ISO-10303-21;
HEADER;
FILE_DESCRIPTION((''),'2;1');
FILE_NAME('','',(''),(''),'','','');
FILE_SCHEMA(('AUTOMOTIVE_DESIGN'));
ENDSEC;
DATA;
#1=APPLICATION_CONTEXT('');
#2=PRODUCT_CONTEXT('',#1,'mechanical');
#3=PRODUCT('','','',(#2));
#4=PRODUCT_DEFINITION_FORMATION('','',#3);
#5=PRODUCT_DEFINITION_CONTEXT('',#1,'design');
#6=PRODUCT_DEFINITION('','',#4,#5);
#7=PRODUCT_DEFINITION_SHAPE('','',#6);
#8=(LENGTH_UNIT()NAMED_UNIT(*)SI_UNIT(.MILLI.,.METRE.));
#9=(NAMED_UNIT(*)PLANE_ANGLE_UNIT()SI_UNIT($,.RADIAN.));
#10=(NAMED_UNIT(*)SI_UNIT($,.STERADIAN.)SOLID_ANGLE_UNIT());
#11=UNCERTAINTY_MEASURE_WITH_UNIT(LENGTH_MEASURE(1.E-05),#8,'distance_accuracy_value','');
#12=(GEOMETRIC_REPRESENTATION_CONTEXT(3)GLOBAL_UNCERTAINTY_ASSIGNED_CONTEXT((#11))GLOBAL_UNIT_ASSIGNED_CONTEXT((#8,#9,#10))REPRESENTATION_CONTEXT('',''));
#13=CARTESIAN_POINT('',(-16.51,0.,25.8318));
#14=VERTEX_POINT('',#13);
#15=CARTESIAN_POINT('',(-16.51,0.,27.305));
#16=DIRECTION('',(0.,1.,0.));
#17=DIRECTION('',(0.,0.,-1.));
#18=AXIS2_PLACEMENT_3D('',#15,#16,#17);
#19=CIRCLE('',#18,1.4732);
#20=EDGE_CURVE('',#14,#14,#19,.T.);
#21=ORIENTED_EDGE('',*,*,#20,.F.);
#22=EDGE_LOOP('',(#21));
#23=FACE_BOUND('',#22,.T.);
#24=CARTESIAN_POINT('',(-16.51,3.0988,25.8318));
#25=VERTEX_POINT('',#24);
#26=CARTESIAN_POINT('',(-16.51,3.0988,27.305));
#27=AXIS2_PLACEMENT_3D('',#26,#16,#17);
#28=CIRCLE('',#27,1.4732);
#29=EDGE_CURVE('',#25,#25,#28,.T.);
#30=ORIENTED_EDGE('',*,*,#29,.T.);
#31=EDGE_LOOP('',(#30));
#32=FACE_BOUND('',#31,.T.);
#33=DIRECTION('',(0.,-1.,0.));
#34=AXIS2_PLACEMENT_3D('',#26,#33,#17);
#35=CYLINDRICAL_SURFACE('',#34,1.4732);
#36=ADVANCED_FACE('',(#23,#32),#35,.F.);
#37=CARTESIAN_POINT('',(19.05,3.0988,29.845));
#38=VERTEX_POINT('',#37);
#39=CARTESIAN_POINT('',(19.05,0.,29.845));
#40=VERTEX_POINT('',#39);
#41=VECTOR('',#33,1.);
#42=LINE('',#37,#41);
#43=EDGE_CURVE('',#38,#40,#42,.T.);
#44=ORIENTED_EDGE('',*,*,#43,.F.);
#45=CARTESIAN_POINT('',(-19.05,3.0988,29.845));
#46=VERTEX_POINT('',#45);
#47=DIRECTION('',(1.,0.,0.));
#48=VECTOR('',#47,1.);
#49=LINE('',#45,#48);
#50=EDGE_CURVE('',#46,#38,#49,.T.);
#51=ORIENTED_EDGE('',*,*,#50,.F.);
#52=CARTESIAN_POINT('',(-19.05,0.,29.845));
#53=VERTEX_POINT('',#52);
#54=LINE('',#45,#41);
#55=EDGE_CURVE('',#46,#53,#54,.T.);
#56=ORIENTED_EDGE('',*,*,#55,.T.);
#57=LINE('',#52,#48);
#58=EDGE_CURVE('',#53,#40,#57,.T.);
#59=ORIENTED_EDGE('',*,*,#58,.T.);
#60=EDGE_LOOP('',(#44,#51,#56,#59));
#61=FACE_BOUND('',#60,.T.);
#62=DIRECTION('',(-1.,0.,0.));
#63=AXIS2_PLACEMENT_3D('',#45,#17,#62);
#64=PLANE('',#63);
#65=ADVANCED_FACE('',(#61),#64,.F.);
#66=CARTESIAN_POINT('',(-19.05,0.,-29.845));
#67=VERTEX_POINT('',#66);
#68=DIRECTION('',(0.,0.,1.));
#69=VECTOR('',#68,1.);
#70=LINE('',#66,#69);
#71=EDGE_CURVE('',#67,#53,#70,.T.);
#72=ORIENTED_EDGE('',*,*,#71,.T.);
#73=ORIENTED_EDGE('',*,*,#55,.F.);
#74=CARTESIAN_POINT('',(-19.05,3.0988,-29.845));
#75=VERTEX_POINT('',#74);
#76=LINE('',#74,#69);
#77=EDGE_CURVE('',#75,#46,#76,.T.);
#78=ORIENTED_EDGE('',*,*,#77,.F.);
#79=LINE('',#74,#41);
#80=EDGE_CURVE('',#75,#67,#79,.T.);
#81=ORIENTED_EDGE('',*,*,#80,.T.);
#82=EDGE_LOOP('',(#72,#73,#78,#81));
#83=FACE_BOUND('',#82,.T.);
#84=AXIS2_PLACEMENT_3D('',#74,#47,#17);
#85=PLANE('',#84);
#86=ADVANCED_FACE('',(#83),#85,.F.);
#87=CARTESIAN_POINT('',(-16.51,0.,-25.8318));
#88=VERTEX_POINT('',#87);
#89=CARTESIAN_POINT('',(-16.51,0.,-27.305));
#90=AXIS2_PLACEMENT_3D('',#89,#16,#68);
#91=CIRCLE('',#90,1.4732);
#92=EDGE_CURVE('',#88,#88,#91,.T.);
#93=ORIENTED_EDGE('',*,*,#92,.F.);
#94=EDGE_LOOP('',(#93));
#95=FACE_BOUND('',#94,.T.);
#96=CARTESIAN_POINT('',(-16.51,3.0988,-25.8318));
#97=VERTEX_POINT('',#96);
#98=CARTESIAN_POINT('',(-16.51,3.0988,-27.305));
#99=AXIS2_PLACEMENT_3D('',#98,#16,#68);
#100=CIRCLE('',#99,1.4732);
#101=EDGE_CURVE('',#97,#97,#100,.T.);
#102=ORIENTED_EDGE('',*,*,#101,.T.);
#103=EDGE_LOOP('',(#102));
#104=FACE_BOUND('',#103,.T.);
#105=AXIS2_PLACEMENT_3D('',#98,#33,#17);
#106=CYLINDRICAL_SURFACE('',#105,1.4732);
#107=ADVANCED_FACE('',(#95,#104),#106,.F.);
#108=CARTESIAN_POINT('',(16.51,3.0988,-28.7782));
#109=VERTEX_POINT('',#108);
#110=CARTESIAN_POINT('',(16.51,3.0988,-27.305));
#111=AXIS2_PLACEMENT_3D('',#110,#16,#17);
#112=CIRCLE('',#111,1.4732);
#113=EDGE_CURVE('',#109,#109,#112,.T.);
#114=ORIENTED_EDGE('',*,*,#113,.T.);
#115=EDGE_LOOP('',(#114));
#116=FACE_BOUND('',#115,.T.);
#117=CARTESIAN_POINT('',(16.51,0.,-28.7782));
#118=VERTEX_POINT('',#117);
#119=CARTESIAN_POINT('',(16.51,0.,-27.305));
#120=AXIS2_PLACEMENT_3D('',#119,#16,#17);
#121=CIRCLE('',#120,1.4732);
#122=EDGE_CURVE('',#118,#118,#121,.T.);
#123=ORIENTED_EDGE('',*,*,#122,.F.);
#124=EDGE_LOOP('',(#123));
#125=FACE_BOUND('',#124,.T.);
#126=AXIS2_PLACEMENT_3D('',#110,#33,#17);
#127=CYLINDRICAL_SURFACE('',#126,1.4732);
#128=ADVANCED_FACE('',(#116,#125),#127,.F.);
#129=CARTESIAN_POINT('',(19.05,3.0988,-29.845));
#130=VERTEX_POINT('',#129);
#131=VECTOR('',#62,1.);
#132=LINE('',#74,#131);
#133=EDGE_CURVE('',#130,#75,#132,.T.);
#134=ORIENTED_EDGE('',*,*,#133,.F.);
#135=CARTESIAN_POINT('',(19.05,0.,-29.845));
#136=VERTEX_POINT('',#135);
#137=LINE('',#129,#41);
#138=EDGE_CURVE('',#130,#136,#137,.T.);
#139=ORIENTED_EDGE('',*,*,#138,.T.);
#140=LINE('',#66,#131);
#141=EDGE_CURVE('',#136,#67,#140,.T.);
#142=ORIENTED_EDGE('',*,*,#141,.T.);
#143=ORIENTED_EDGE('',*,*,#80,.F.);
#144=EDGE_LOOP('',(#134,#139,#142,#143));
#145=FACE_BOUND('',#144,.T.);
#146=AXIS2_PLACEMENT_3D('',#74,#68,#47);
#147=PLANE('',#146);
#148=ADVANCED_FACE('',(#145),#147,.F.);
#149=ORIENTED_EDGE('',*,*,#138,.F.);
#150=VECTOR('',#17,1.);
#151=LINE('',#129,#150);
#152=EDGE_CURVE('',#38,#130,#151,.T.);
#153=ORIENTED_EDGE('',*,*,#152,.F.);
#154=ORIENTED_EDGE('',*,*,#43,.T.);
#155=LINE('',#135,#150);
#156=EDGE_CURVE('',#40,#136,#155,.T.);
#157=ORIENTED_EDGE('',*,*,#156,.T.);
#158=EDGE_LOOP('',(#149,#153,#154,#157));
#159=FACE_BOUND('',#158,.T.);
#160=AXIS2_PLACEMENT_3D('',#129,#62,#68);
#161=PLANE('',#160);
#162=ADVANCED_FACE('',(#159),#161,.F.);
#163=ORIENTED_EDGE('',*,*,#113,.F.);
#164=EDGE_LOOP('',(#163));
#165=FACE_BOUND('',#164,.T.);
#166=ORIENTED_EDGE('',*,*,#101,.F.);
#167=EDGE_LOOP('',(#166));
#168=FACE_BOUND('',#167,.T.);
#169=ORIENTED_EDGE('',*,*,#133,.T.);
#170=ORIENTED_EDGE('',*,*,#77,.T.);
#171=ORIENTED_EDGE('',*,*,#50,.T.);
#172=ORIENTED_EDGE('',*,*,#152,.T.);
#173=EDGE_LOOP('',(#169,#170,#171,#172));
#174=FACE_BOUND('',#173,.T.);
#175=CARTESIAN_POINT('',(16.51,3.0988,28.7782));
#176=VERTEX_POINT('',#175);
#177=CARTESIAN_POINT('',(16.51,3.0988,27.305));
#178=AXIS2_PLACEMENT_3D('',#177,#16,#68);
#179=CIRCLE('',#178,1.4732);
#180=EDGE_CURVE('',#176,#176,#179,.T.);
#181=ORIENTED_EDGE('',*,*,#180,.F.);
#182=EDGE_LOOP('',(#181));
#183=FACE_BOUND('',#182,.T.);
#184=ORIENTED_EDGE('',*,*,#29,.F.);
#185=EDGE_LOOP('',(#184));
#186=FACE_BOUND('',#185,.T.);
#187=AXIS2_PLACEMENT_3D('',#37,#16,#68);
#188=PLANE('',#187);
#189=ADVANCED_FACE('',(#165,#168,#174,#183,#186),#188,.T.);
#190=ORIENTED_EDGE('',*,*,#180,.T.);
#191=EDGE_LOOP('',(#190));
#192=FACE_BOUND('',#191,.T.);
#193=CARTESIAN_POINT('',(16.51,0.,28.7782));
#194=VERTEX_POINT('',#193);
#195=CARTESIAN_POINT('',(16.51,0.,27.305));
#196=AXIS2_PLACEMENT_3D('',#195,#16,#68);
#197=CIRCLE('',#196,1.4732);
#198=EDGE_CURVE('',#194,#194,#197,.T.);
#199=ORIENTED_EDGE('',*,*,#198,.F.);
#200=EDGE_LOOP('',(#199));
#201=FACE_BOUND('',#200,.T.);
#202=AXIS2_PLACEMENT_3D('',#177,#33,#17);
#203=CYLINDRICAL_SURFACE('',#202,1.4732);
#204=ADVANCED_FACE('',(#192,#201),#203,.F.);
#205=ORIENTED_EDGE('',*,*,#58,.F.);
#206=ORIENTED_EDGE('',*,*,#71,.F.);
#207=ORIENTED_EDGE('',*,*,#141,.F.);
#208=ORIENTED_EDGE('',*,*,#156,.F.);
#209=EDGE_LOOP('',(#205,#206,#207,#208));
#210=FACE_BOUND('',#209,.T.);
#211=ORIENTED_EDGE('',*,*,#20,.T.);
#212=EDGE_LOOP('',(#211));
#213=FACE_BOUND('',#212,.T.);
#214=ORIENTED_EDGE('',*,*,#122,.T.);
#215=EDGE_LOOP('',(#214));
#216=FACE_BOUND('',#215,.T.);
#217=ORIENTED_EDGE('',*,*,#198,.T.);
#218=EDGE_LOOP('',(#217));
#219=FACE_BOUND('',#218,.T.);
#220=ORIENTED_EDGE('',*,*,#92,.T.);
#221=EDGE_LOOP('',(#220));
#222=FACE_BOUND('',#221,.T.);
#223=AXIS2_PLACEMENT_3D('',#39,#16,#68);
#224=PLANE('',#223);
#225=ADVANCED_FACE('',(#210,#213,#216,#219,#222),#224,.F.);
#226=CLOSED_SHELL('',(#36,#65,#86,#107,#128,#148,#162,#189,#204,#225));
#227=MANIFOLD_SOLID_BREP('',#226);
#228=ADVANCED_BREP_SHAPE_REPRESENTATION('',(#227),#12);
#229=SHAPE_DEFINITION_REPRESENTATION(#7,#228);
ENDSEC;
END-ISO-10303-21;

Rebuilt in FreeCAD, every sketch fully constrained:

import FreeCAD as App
import Part
import Sketcher
Q = App.Units.Quantity

doc = App.newDocument("Part")
params = doc.addObject("Spreadsheet::Sheet", "Params")
for row, (alias, value) in enumerate([
    ("sketch1_diameter", "0.116 in"),
    ("sketch1_width", "1.5 in"),
    ("sketch1_height", "2.35 in"),
    ("pad1_length", "0.122 in"),
], start=1):
    params.set(f"A{row}", alias)
    params.set(f"B{row}", "=" + value)
    params.setAlias(f"B{row}", alias)

body = doc.addObject("PartDesign::Body", "Body")

# Sketch on XZ plane
sketch1 = body.newObject("Sketcher::SketchObject", "Sketch")
sketch1.AttachmentSupport = (doc.getObject("XZ_Plane"), [""])
sketch1.MapMode = "FlatFace"
sketch1.addGeometry([
    Part.LineSegment(App.Vector(-19.05, -29.845, 0), App.Vector(-19.05, 29.845, 0)),  # 0
    Part.LineSegment(App.Vector(-19.05, 29.845, 0), App.Vector(19.05, 29.845, 0)),  # 1
    Part.LineSegment(App.Vector(19.05, 29.845, 0), App.Vector(19.05, -29.845, 0)),  # 2
    Part.LineSegment(App.Vector(19.05, -29.845, 0), App.Vector(-19.05, -29.845, 0)),  # 3
    Part.Circle(App.Vector(-16.51, 27.305, 0), App.Vector(0, 0, 1), 1.4732),  # 4
    Part.Circle(App.Vector(16.51, 27.305, 0), App.Vector(0, 0, 1), 1.4732),  # 5
    Part.Circle(App.Vector(-16.51, -27.305, 0), App.Vector(0, 0, 1), 1.4732),  # 6
    Part.Circle(App.Vector(16.51, -27.305, 0), App.Vector(0, 0, 1), 1.4732),  # 7
], False)
sketch1.addConstraint([
    Sketcher.Constraint("Coincident", 0, 2, 1, 1),
    Sketcher.Constraint("Coincident", 1, 2, 2, 1),
    Sketcher.Constraint("Coincident", 2, 2, 3, 1),
    Sketcher.Constraint("Coincident", 3, 2, 0, 1),
    Sketcher.Constraint("Vertical", 0),
    Sketcher.Constraint("Horizontal", 1),
    Sketcher.Constraint("Vertical", 2),
    Sketcher.Constraint("Horizontal", 3),
    Sketcher.Constraint("Equal", 4, 5),
    Sketcher.Constraint("Equal", 5, 6),
    Sketcher.Constraint("Equal", 6, 7),
    Sketcher.Constraint("Symmetric", 5, 3, 6, 3, -1, 1),
    Sketcher.Constraint("Symmetric", 4, 3, 7, 3, -1, 1),
    Sketcher.Constraint("Symmetric", 0, 2, 2, 2, -1, 1),
    Sketcher.Constraint("Symmetric", 4, 3, 5, 3, -2),
    Sketcher.Constraint("Diameter", 4, Q("0.116 in")),
    Sketcher.Constraint("DistanceX", 1, 1, 1, 2, Q("1.5 in")),
    Sketcher.Constraint("DistanceY", 0, 1, 0, 2, Q("2.35 in")),
    Sketcher.Constraint("DistanceX", 4, 3, 5, 3, Q("1.3 in")),
    Sketcher.Constraint("DistanceY", 4, 3, 0, 2, Q("0.1 in")),
])
sketch1.setExpression("Constraints[15]", "Params.sketch1_diameter")
sketch1.setExpression("Constraints[16]", "Params.sketch1_width")
sketch1.setExpression("Constraints[17]", "Params.sketch1_height")
pad1 = body.newObject("PartDesign::Pad", "Pad")
pad1.Profile = sketch1
pad1.setExpression("Length", "Params.pad1_length")
pad1.Reversed = True

doc.recompute()
